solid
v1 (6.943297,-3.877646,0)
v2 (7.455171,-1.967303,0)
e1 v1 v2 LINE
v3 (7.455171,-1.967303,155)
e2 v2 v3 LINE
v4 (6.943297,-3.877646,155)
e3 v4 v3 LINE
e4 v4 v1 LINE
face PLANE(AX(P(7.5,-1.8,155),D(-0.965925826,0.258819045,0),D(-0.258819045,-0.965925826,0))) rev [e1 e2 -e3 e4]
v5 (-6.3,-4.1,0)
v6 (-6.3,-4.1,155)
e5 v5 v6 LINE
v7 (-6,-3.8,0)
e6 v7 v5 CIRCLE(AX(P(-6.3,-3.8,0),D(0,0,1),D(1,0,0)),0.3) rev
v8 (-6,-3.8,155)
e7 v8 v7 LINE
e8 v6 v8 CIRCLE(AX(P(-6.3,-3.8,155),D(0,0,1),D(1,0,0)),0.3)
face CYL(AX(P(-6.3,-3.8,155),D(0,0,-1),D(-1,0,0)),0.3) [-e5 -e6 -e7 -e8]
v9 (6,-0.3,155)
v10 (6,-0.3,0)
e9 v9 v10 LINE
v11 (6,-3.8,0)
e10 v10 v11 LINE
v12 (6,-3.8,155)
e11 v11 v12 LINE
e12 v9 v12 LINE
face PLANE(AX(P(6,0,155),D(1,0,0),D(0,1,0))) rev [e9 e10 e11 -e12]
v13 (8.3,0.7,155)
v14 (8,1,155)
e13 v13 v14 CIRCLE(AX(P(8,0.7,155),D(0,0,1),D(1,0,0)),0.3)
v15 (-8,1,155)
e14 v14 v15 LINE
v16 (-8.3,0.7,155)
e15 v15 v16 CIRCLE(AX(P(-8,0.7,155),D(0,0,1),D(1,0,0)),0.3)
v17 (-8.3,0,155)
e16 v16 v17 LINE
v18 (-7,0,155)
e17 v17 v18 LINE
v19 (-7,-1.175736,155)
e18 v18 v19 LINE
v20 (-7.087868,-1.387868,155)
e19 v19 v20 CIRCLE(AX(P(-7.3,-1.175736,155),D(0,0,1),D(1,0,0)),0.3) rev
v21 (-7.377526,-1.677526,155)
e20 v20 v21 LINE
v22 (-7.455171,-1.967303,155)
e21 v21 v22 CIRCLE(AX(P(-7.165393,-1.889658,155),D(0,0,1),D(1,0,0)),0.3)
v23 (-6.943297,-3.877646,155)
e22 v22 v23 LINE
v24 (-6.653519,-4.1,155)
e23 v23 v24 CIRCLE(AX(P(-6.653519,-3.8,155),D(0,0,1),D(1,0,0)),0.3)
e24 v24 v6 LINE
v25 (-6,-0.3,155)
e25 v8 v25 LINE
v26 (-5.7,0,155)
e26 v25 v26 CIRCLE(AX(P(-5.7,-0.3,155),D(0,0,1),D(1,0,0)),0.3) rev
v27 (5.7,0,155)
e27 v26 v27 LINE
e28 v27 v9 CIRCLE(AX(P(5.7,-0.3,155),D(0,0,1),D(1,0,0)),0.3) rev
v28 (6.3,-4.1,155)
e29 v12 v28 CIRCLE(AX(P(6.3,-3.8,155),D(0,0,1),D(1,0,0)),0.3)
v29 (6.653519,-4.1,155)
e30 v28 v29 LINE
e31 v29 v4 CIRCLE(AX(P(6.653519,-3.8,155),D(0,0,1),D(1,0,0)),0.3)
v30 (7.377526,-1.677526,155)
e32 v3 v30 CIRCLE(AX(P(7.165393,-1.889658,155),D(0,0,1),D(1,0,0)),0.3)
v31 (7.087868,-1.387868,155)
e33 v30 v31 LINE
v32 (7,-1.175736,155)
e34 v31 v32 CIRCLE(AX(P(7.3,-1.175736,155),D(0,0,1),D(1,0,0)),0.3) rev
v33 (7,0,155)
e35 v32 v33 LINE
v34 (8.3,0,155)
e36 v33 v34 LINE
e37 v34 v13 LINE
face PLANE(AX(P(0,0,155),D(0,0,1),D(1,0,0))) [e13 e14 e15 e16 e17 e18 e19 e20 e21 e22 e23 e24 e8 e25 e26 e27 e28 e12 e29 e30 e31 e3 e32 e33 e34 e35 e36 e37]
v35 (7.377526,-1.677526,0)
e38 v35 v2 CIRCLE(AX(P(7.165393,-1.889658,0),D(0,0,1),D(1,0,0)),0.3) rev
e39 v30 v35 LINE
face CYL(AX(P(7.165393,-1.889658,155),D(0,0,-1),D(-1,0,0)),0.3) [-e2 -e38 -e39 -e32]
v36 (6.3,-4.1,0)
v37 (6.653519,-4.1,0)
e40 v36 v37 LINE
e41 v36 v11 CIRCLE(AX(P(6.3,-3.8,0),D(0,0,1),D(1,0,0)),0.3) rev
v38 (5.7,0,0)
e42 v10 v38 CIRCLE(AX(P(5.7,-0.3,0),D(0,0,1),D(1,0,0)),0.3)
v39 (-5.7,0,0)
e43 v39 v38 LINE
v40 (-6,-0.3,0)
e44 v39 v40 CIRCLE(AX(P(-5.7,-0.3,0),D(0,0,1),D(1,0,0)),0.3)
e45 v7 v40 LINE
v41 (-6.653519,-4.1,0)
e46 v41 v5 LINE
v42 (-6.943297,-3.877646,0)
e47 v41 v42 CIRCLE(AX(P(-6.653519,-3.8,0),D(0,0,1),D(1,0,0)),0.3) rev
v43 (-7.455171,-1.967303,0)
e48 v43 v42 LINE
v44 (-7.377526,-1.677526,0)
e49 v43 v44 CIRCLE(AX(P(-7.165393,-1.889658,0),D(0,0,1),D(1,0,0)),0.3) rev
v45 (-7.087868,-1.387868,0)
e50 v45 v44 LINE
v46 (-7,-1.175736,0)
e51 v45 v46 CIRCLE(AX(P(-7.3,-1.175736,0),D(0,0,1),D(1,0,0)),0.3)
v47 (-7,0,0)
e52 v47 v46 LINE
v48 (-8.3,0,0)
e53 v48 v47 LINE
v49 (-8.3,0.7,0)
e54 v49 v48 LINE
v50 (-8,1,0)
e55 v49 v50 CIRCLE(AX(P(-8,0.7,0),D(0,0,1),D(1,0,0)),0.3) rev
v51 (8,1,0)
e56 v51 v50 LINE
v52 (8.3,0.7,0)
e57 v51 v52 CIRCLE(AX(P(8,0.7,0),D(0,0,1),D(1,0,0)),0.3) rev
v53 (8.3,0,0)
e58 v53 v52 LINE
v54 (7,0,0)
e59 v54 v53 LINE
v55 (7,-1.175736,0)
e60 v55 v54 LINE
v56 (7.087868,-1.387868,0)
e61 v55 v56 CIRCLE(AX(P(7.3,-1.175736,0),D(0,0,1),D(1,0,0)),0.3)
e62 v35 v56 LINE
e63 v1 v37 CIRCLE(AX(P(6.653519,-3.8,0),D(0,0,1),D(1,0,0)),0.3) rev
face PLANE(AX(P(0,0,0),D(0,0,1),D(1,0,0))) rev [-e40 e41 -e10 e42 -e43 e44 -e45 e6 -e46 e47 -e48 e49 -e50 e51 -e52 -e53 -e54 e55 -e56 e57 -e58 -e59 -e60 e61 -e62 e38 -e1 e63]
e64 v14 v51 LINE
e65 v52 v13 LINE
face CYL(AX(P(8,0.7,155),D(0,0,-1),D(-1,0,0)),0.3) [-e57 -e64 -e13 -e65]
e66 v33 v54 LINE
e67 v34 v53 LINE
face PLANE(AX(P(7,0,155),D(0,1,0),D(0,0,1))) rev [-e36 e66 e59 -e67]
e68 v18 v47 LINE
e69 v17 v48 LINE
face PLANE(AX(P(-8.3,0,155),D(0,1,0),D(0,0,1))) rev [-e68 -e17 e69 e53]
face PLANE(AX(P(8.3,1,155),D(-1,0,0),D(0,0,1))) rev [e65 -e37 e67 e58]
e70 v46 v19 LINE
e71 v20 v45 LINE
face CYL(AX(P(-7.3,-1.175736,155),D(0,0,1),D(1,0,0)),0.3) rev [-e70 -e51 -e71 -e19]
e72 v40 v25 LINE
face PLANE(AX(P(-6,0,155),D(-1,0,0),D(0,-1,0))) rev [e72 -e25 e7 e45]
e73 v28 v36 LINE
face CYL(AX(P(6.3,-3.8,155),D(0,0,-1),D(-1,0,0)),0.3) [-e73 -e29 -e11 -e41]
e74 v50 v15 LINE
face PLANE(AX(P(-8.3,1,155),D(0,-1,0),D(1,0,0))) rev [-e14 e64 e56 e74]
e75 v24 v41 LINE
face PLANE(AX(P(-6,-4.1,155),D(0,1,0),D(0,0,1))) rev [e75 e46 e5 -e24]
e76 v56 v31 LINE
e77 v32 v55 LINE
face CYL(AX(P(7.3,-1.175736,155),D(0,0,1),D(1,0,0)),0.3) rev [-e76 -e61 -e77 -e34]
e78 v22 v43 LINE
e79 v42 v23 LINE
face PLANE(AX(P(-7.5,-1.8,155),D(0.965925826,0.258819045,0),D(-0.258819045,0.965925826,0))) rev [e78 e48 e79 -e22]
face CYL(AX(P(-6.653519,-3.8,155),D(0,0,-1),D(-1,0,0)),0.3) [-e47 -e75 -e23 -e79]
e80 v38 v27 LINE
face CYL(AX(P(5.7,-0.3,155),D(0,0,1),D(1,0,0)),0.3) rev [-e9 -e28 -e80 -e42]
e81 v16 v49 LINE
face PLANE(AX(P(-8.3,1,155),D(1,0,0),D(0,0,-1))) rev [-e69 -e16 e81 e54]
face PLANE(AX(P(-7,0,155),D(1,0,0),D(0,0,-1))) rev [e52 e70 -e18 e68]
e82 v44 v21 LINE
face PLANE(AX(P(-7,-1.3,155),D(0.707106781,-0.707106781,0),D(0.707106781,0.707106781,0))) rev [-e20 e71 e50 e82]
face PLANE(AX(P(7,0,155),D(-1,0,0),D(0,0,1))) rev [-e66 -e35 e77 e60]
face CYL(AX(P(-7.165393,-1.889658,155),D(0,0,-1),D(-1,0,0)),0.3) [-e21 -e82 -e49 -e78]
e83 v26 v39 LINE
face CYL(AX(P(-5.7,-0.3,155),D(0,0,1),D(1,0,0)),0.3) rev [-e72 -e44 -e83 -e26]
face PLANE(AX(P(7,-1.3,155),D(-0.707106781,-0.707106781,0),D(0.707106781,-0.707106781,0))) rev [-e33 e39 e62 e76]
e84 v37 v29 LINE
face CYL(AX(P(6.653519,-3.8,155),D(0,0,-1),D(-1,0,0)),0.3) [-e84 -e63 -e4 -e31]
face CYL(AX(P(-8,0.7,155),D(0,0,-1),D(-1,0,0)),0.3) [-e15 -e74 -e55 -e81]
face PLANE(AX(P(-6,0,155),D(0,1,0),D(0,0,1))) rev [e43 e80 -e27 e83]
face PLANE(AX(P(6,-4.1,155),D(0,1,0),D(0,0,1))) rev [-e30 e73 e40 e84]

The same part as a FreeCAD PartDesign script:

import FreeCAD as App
import Part
import Sketcher
Q = App.Units.Quantity


def edges_at(feature, points):
    """Names of the edges that pass closest to the given points."""
    edges = feature.Shape.Edges
    near = lambda p: min(range(len(edges)), key=lambda i: edges[i].distToShape(Part.Vertex(*p))[0])
    return sorted({f"Edge{near(p) + 1}" for p in points})


def add_polygon(sketch, points):
    """Adds a closed chain of lines whose ends are joined by coincident constraints."""
    first, n = sketch.GeometryCount, len(points)
    for a, b in zip(points, points[1:] + points[:1]):
        sketch.addGeometry(Part.LineSegment(App.Vector(*a, 0), App.Vector(*b, 0)), False)
    for i in range(n):
        sketch.addConstraint(Sketcher.Constraint("Coincident", first + i, 2, first + (i + 1) % n, 1))

doc = App.newDocument("Part")
body = doc.addObject("PartDesign::Body", "Body")

sketch1 = body.newObject("Sketcher::SketchObject", "Sketch")
sketch1.AttachmentSupport = (doc.getObject("XY_Plane"), [""])
sketch1.MapMode = "FlatFace"
add_polygon(sketch1, [(8.3, 1), (-8.3, 1), (-8.3, 0), (-7, 0), (-7, -1.3), (-7.5, -1.8), (-6.9, -4.1), (-6, -4.1), (-6, 0), (6, 0), (6, -4.1), (6.9, -4.1), (7.5, -1.8), (7, -1.3), (7, 0), (8.3, 0)])
sketch1.addConstraint(Sketcher.Constraint("Horizontal", 0))
sketch1.addConstraint(Sketcher.Constraint("Vertical", 1))
sketch1.addConstraint(Sketcher.Constraint("Horizontal", 2))
sketch1.addConstraint(Sketcher.Constraint("Vertical", 3))
sketch1.addConstraint(Sketcher.Constraint("Horizontal", 6))
sketch1.addConstraint(Sketcher.Constraint("Vertical", 7))
sketch1.addConstraint(Sketcher.Constraint("Horizontal", 8))
sketch1.addConstraint(Sketcher.Constraint("Vertical", 9))
sketch1.addConstraint(Sketcher.Constraint("Horizontal", 10))
sketch1.addConstraint(Sketcher.Constraint("Vertical", 13))
sketch1.addConstraint(Sketcher.Constraint("Horizontal", 14))
sketch1.addConstraint(Sketcher.Constraint("Vertical", 15))
sketch1.addConstraint(Sketcher.Constraint("Symmetric", 7, 2, 8, 2, -1, 1))
sketch1.addConstraint(Sketcher.Constraint("Symmetric", 2, 2, 13, 2, -1, 1))
sketch1.addConstraint(Sketcher.Constraint("Symmetric", 5, 2, 10, 2, -2))
sketch1.addConstraint(Sketcher.Constraint("Symmetric", 4, 2, 11, 2, -2))
sketch1.addConstraint(Sketcher.Constraint("Symmetric", 1, 2, 14, 2, -2))
sketch1.addConstraint(Sketcher.Constraint("Perpendicular", 4, 12))
sketch1.addConstraint(Sketcher.Constraint("Horizontal", 3, 2, 12, 2))
sketch1.addConstraint(Sketcher.Constraint("Equal", 14, 3))
sketch1.addConstraint(Sketcher.Constraint("DistanceX", 8, 1, 8, 2, Q("12 mm")))
sketch1.addConstraint(Sketcher.Constraint("DistanceY", 1, 2, 1, 1, Q("1 mm")))
sketch1.addConstraint(Sketcher.Constraint("Angle", 5, Q("-75 deg")))
sketch1.addConstraint(Sketcher.Constraint("DistanceX", 0, 2, 0, 1, Q("16.6 mm")))
sketch1.addConstraint(Sketcher.Constraint("DistanceX", 2, 1, 2, 2, Q("1.3 mm")))
sketch1.addConstraint(Sketcher.Constraint("DistanceY", 7, 1, 7, 2, Q("4.1 mm")))
sketch1.addConstraint(Sketcher.Constraint("DistanceX", 4, 2, -1, 1, Q("7.5 mm")))
pad1 = body.newObject("PartDesign::Pad", "Pad")
pad1.Profile = sketch1
pad1.Length = 155
doc.recompute()

fillet = body.newObject("PartDesign::Fillet", "Fillet")
fillet.Base = (pad1, edges_at(pad1, [
    (-8.3, 1, 77.5),
    (8.3, 1, 77.5),
    (7, -1.3, 77.5),
    (7.5, -1.8, 77.5),
    (6.884, -4.1, 77.5),
    (6, -4.1, 77.5),
    (6, 0, 77.5),
    (-6, 0, 77.5),
    (-6, -4.1, 77.5),
    (-6.884, -4.1, 77.5),
    (-7.5, -1.8, 77.5),
    (-7, -1.3, 77.5),
]))
fillet.Radius = 0.3

doc.recompute()
